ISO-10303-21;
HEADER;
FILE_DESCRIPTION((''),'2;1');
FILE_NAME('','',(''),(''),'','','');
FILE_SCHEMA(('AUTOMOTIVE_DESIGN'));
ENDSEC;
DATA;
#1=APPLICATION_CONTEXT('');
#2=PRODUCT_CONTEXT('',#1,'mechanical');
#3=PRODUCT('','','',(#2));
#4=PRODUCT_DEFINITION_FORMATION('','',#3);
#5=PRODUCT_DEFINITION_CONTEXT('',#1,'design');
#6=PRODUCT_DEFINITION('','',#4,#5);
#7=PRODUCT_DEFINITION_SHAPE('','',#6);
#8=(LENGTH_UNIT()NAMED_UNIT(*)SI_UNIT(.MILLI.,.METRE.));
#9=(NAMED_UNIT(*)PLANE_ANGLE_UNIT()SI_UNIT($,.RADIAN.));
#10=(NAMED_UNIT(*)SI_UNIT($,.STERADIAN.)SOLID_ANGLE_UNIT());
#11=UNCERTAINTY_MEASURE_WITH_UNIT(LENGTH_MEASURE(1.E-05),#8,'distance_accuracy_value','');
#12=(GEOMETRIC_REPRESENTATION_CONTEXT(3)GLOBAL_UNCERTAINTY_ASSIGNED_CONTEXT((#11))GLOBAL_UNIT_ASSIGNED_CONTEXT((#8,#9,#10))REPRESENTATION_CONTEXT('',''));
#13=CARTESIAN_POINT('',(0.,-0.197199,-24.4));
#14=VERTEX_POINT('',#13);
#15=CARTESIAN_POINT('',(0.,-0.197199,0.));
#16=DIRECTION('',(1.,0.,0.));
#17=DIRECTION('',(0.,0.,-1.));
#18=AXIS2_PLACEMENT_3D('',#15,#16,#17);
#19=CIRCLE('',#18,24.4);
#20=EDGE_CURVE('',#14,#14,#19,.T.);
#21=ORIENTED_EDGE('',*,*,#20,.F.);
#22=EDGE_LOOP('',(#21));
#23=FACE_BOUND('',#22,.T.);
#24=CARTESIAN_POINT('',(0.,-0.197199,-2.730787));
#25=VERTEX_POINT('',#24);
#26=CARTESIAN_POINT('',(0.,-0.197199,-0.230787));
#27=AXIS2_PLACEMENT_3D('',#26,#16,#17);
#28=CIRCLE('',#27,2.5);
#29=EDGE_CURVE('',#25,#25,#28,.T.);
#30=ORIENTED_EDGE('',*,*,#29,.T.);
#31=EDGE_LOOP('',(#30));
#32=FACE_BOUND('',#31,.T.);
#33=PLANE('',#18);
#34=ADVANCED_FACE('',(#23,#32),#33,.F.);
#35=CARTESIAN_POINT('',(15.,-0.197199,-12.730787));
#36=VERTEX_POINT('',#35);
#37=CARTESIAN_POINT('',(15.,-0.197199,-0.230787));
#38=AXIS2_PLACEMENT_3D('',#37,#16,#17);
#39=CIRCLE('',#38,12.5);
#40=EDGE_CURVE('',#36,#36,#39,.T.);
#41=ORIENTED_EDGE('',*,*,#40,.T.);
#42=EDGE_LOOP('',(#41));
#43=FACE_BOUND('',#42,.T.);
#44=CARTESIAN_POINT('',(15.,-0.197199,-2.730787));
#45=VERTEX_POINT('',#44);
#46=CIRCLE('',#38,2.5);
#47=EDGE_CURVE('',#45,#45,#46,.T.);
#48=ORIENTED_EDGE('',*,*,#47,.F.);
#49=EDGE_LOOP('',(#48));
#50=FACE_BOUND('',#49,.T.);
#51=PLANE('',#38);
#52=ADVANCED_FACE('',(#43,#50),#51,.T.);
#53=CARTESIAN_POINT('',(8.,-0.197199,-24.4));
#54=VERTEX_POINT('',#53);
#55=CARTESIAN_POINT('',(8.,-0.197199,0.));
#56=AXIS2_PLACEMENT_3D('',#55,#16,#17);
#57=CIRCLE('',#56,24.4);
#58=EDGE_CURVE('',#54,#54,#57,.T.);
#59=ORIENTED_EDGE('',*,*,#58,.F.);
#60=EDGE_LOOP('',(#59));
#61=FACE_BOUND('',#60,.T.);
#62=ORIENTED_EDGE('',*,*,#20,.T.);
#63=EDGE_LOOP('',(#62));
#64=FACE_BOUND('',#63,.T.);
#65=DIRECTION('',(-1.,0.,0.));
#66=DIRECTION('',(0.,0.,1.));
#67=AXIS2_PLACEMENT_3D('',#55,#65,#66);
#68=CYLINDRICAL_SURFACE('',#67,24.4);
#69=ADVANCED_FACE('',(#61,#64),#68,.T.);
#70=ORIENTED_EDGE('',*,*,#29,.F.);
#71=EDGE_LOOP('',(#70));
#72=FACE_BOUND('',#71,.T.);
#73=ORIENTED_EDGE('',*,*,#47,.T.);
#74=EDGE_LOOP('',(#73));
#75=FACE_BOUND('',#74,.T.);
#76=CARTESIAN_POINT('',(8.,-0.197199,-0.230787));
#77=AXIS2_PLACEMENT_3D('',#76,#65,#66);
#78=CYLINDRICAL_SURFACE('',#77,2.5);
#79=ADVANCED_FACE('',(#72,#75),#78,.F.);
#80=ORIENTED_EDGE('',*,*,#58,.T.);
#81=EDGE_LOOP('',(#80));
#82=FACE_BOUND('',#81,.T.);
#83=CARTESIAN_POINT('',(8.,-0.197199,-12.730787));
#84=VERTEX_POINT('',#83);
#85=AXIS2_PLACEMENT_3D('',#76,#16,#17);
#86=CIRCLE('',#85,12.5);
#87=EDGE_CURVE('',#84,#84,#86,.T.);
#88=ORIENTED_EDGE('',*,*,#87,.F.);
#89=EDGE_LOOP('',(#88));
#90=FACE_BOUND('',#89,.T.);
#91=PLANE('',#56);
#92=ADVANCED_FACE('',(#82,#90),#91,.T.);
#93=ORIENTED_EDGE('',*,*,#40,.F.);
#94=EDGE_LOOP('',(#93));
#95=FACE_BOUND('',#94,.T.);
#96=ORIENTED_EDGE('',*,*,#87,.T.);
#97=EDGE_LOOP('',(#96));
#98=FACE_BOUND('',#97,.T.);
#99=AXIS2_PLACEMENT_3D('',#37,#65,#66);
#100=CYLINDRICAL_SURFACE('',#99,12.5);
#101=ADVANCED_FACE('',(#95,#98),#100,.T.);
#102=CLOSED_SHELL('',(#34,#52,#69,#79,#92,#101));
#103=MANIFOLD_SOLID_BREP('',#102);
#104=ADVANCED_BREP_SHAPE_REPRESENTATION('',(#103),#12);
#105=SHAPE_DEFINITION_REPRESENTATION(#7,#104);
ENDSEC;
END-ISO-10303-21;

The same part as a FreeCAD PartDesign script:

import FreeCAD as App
import Part
import Sketcher
from FreeCAD import Vector
Q = App.Units.Quantity

doc = App.newDocument("Part")
body = doc.addObject("PartDesign::Body", "Body")

sketch1 = body.newObject("Sketcher::SketchObject", "Sketch")
sketch1.AttachmentSupport = (doc.getObject("YZ_Plane"), [""])
sketch1.MapMode = "FlatFace"
sketch1.addGeometry([
    Part.Circle(Vector(-0.2, 0, 0), Vector(0, 0, 1), 24.4),
    Part.Circle(Vector(-0.2, -0.2, 0), Vector(0, 0, 1), 2.5),
], False)
sketch1.addConstraint([
    Sketcher.Constraint("PointOnObject", 0, 3, -1),
    Sketcher.Constraint("Vertical", 0, 3, 1, 3),
    Sketcher.Constraint("Diameter", 1, Q("5 mm")),
    Sketcher.Constraint("Diameter", 0, Q("48.8 mm")),
    Sketcher.Constraint("DistanceX", 0, 3, -1, 1, Q("0.197199 mm")),
    Sketcher.Constraint("DistanceY", 1, 3, -1, 1, Q("0.230787 mm")),
])
pad1 = body.newObject("PartDesign::Pad", "Pad")
pad1.Profile = sketch1
pad1.Length = 8

sketch2 = body.newObject("Sketcher::SketchObject", "Sketch001")
sketch2.AttachmentSupport = (doc.getObject("YZ_Plane"), [""])
sketch2.MapMode = "FlatFace"
sketch2.AttachmentOffset = App.Placement(Vector(0, 0, 8), App.Rotation())
sketch2.addGeometry([
    Part.Circle(Vector(-0.2, -0.2, 0), Vector(0, 0, 1), 12.5),
    Part.Circle(Vector(-0.2, -0.2, 0), Vector(0, 0, 1), 2.5),
], False)
sketch2.addConstraint([
    Sketcher.Constraint("Coincident", 1, 3, 0, 3),
    Sketcher.Constraint("Diameter", 0, Q("25 mm")),
    Sketcher.Constraint("Diameter", 1, Q("5 mm")),
    Sketcher.Constraint("DistanceX", 0, 3, -1, 1, Q("0.197199 mm")),
    Sketcher.Constraint("DistanceY", 0, 3, -1, 1, Q("0.230787 mm")),
])
pad2 = body.newObject("PartDesign::Pad", "Pad001")
pad2.Profile = sketch2
pad2.Length = 7

doc.recompute()
